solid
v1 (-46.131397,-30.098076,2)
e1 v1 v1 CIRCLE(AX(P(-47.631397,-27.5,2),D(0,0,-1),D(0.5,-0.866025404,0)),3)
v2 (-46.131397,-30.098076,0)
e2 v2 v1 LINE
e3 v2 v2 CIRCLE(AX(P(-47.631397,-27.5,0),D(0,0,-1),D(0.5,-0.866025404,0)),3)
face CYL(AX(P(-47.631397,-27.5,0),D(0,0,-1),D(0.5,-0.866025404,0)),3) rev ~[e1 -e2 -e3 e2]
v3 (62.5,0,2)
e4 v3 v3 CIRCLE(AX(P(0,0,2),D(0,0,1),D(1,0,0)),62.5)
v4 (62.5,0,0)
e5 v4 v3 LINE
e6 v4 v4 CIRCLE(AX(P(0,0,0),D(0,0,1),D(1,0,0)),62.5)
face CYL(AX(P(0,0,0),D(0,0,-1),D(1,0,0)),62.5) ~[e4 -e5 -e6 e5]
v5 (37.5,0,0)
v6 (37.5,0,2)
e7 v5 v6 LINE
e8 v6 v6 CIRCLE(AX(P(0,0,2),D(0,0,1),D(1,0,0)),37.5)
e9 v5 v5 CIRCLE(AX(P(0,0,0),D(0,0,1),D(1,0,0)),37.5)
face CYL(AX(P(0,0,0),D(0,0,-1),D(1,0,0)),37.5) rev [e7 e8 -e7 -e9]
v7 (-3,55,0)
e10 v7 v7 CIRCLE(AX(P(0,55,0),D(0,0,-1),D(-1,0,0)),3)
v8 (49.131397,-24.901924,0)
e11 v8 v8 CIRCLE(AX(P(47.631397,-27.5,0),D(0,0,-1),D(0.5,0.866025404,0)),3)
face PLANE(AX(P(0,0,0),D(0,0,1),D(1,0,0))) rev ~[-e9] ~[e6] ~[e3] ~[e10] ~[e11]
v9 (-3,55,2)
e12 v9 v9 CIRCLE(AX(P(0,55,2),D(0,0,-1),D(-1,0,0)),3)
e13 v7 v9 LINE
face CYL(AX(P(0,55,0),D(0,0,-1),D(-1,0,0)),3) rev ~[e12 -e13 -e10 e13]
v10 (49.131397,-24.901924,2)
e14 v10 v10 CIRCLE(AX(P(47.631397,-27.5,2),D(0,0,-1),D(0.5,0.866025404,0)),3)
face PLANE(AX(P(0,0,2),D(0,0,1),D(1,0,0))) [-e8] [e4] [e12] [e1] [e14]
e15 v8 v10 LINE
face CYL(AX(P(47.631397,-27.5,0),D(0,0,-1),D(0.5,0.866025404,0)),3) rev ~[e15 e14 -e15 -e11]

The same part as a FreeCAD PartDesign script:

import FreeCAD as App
import Part
import Sketcher
from FreeCAD import Vector
Q = App.Units.Quantity

doc = App.newDocument("Part")
body = doc.addObject("PartDesign::Body", "Body")

sketch1 = doc.addObject("Sketcher::SketchObject", "Sketch")
body.addObject(sketch1)
sketch1.AttachmentSupport = (doc.XY_Plane, [""])
sketch1.MapMode = "FlatFace"
sketch1.addGeometry([
    Part.Circle(Vector(0, 0, 0), Vector(0, 0, 1), 62),
    Part.Circle(Vector(0, 0, 0), Vector(0, 0, 1), 38),
], False)
sketch1.addConstraint([
    Sketcher.Constraint("Coincident", 0, 3, -1, 1),
    Sketcher.Constraint("Coincident", 1, 3, -1, 1),
    Sketcher.Constraint("Diameter", 0, Q("125 mm")),
    Sketcher.Constraint("Diameter", 1, Q("75 mm")),
])
pad1 = doc.addObject("PartDesign::Pad", "Pad")
body.addObject(pad1)
pad1.Profile = sketch1
pad1.Length = 2

sketch2 = doc.addObject("Sketcher::SketchObject", "Sketch001")
body.addObject(sketch2)
sketch2.AttachmentSupport = (doc.XY_Plane, [""])
sketch2.MapMode = "FlatFace"
sketch2.addGeometry(Part.Circle(Vector(0, 55, 0), Vector(0, 0, 1), 3), False)
sketch2.addConstraint([
    Sketcher.Constraint("PointOnObject", 0, 3, -2),
    Sketcher.Constraint("Diameter", 0, Q("6 mm")),
    Sketcher.Constraint("DistanceY", -1, 1, 0, 3, Q("55 mm")),
])
pocket1 = doc.addObject("PartDesign::Pocket", "Pocket")
body.addObject(pocket1)
pocket1.Profile = sketch2
pocket1.Type = "ThroughAll"
pocket1.Reversed = True
doc.recompute()

polarpattern = doc.addObject("PartDesign::PolarPattern", "PolarPattern")
body.addObject(polarpattern)
polarpattern.Originals = [pocket1]
polarpattern.Axis = (doc.Z_Axis, [""])
polarpattern.Angle = 360
polarpattern.Occurrences = 3
body.Tip = polarpattern

doc.recompute()
